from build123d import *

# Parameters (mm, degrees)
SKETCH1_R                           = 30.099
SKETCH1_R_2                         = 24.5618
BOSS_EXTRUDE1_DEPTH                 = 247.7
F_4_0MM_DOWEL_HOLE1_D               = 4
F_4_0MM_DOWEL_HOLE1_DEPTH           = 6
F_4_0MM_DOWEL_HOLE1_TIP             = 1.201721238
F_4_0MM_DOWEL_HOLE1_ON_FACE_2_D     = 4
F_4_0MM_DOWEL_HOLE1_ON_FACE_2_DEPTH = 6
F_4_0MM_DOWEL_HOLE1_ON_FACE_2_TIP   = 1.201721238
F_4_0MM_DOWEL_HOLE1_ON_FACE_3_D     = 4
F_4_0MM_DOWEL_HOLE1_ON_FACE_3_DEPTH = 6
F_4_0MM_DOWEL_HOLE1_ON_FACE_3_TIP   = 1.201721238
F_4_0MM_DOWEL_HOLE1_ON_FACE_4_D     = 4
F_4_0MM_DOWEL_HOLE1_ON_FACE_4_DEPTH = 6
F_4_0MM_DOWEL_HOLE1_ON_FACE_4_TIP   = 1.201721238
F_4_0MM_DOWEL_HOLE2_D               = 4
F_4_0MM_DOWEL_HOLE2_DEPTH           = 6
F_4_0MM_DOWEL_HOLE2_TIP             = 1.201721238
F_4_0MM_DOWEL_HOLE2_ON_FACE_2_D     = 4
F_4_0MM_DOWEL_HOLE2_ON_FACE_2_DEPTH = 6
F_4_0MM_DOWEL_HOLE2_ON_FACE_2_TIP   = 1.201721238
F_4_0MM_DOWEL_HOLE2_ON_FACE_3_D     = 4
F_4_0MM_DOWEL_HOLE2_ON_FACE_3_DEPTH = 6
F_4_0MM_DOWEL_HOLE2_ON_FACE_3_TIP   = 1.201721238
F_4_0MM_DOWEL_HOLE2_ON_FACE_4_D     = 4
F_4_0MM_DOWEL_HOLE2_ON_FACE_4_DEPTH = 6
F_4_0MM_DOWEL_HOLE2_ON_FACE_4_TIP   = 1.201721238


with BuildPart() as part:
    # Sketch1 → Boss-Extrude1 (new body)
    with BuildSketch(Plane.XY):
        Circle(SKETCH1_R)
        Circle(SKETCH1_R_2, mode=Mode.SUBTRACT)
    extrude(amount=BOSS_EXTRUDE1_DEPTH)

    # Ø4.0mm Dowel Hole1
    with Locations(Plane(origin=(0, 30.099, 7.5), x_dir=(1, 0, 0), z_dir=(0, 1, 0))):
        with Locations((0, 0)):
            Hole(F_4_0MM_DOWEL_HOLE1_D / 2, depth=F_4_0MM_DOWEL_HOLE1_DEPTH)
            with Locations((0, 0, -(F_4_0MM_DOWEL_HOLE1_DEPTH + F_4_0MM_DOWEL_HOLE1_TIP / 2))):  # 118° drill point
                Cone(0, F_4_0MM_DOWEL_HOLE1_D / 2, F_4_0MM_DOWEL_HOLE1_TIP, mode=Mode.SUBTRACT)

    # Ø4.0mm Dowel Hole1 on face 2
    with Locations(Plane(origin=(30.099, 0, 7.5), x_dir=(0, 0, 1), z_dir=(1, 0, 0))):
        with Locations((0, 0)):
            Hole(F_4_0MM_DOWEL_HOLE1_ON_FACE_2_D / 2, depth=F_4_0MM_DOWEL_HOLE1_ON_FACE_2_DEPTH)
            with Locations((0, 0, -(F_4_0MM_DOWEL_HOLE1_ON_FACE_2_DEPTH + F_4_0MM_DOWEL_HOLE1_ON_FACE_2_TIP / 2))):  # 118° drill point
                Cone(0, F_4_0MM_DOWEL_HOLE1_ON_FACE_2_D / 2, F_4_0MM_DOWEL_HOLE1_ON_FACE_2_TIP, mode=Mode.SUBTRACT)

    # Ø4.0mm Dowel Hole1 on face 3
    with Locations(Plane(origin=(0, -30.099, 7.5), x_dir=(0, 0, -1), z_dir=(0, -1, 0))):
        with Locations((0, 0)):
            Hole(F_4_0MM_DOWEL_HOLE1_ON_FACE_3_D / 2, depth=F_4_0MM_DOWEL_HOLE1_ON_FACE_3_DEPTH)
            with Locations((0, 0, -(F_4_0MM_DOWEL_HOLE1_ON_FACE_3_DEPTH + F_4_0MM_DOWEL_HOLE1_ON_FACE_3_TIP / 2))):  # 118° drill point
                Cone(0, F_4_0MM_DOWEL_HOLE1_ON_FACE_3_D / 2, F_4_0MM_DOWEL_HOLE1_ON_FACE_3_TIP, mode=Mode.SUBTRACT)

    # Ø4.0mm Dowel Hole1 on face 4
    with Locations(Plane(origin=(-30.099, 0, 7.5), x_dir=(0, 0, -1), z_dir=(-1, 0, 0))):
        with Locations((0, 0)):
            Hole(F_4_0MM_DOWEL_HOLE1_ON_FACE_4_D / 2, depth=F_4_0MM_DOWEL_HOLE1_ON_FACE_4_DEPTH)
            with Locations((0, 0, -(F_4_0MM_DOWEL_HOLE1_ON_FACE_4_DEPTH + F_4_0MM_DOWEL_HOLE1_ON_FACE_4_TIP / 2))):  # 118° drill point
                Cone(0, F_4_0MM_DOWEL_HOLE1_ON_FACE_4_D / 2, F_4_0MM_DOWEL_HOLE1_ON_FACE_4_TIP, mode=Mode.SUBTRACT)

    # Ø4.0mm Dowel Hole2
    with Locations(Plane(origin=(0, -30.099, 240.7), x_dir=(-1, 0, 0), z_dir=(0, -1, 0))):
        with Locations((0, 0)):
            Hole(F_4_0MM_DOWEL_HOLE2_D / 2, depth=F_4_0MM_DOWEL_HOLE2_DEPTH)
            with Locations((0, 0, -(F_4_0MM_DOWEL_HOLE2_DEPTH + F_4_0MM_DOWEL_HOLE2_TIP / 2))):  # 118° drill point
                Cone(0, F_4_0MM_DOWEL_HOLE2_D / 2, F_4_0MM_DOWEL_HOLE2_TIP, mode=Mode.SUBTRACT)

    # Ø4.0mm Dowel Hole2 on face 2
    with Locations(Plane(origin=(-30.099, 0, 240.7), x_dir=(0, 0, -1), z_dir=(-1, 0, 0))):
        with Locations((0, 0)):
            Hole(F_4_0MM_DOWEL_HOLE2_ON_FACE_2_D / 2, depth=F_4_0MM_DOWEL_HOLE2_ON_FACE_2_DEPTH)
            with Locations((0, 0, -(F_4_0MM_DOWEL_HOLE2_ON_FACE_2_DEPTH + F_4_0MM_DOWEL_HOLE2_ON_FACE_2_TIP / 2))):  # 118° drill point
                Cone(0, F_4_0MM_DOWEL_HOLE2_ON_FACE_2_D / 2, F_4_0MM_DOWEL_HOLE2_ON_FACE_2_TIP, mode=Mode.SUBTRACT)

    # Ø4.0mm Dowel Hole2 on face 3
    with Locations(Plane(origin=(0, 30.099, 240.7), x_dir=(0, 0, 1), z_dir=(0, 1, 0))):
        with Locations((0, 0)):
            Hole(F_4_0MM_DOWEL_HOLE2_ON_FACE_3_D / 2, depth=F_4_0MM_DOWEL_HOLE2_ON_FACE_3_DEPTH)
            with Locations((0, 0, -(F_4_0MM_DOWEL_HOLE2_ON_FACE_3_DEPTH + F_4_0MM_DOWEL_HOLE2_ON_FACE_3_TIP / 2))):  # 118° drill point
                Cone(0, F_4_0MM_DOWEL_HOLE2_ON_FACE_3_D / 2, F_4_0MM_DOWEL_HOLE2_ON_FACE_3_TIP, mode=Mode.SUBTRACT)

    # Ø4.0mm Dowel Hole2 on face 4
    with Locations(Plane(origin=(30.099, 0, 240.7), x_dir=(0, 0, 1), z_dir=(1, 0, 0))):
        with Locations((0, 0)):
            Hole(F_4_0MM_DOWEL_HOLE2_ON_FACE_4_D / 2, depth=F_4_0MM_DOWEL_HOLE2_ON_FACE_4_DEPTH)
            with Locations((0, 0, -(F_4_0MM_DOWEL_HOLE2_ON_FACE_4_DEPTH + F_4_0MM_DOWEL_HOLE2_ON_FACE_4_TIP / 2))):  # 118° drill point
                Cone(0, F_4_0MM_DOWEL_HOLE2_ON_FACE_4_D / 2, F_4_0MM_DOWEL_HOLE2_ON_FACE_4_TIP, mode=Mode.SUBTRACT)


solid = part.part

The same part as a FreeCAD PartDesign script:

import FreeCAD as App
import Part
import Sketcher
from FreeCAD import Vector
Q = App.Units.Quantity

doc = App.newDocument("Part")
params = doc.addObject("Spreadsheet::Sheet", "Params")
for row, (alias, value) in enumerate([
    ("pad1_length", "247.7 mm"),
    ("sketch2_diameter", "4 mm"),
    ("hole_diameter", "4 mm"),
    ("hole_depth", "6 mm"),
    ("sketch3_diameter", "4 mm"),
    ("hole2_diameter", "4 mm"),
    ("hole2_depth", "6 mm"),
    ("sketch4_diameter", "4 mm"),
    ("hole3_diameter", "4 mm"),
    ("hole3_depth", "6 mm"),
    ("sketch5_diameter", "4 mm"),
    ("hole4_diameter", "4 mm"),
    ("hole4_depth", "6 mm"),
    ("sketch6_diameter", "4 mm"),
    ("hole5_diameter", "4 mm"),
    ("hole5_depth", "6 mm"),
    ("sketch7_diameter", "4 mm"),
    ("hole6_diameter", "4 mm"),
    ("hole6_depth", "6 mm"),
    ("sketch8_diameter", "4 mm"),
    ("hole7_diameter", "4 mm"),
    ("hole7_depth", "6 mm"),
    ("sketch9_diameter", "4 mm"),
    ("hole8_diameter", "4 mm"),
    ("hole8_depth", "6 mm"),
], start=1):
    params.set(f"A{row}", alias)
    params.set(f"B{row}", "=" + value)
    params.setAlias(f"B{row}", alias)

body = doc.addObject("PartDesign::Body", "Body")

# Sketch on XY plane
sketch1 = body.newObject("Sketcher::SketchObject", "Sketch")
sketch1.AttachmentSupport = (doc.getObject("XY_Plane"), [""])
sketch1.MapMode = "FlatFace"
sketch1.addGeometry(Part.Circle(Vector(0, 0, 0), Vector(0, 0, 1), 30.099), False)
sketch1.addGeometry(Part.Circle(Vector(0, 0, 0), Vector(0, 0, 1), 24.5618), False)
sketch1.addConstraint(Sketcher.Constraint("Coincident", 0, 3, -1, 1))
sketch1.addConstraint(Sketcher.Constraint("Coincident", 1, 3, -1, 1))
sketch1.addConstraint(Sketcher.Constraint("Diameter", 0, Q("60.198 mm")))
sketch1.addConstraint(Sketcher.Constraint("Diameter", 1, Q("49.1236 mm")))
pad1 = body.newObject("PartDesign::Pad", "Pad")
pad1.Profile = sketch1
pad1.setExpression("Length", "Params.pad1_length")

# Sketch on XZ plane
sketch2 = body.newObject("Sketcher::SketchObject", "Sketch001")
sketch2.AttachmentSupport = (doc.getObject("XZ_Plane"), [""])
sketch2.MapMode = "FlatFace"
sketch2.AttachmentOffset = App.Placement(Vector(0, 0, -30.099), App.Rotation())
sketch2.addGeometry(Part.Circle(Vector(0, 7.5, 0), Vector(0, 0, 1), 2), False)
sketch2.addConstraint(Sketcher.Constraint("PointOnObject", 0, 3, -2))
sketch2.addConstraint(Sketcher.Constraint("Diameter", 0, Q("4 mm")))
sketch2.addConstraint(Sketcher.Constraint("DistanceY", -1, 1, 0, 3, Q("7.5 mm")))
sketch2.setExpression("Constraints[1]", "Params.sketch2_diameter")
doc.recompute()
hole = body.newObject("PartDesign::Hole", "Hole")
hole.Profile = sketch2
hole.ThreadType = "None"
hole.setExpression("Diameter", "Params.hole_diameter")
hole.DepthType = "Dimension"
hole.setExpression("Depth", "Params.hole_depth")
hole.DrillPoint = "Angled"
hole.DrillPointAngle = 118
hole.Reversed = True

# Sketch on YZ plane
sketch3 = body.newObject("Sketcher::SketchObject", "Sketch002")
sketch3.AttachmentSupport = (doc.getObject("YZ_Plane"), [""])
sketch3.MapMode = "FlatFace"
sketch3.AttachmentOffset = App.Placement(Vector(0, 0, 30.099), App.Rotation())
sketch3.addGeometry(Part.Circle(Vector(0, 7.5, 0), Vector(0, 0, 1), 2), False)
sketch3.addConstraint(Sketcher.Constraint("PointOnObject", 0, 3, -2))
sketch3.addConstraint(Sketcher.Constraint("Diameter", 0, Q("4 mm")))
sketch3.addConstraint(Sketcher.Constraint("DistanceY", -1, 1, 0, 3, Q("7.5 mm")))
sketch3.setExpression("Constraints[1]", "Params.sketch3_diameter")
doc.recompute()
hole2 = body.newObject("PartDesign::Hole", "Hole001")
hole2.Profile = sketch3
hole2.ThreadType = "None"
hole2.setExpression("Diameter", "Params.hole2_diameter")
hole2.DepthType = "Dimension"
hole2.setExpression("Depth", "Params.hole2_depth")
hole2.DrillPoint = "Angled"
hole2.DrillPointAngle = 118

# Sketch on XZ plane
sketch4 = body.newObject("Sketcher::SketchObject", "Sketch003")
sketch4.AttachmentSupport = (doc.getObject("XZ_Plane"), [""])
sketch4.MapMode = "FlatFace"
sketch4.AttachmentOffset = App.Placement(Vector(0, 0, 30.099), App.Rotation())
sketch4.addGeometry(Part.Circle(Vector(0, 7.5, 0), Vector(0, 0, 1), 2), False)
sketch4.addConstraint(Sketcher.Constraint("PointOnObject", 0, 3, -2))
sketch4.addConstraint(Sketcher.Constraint("Diameter", 0, Q("4 mm")))
sketch4.addConstraint(Sketcher.Constraint("DistanceY", -1, 1, 0, 3, Q("7.5 mm")))
sketch4.setExpression("Constraints[1]", "Params.sketch4_diameter")
doc.recompute()
hole3 = body.newObject("PartDesign::Hole", "Hole002")
hole3.Profile = sketch4
hole3.ThreadType = "None"
hole3.setExpression("Diameter", "Params.hole3_diameter")
hole3.DepthType = "Dimension"
hole3.setExpression("Depth", "Params.hole3_depth")
hole3.DrillPoint = "Angled"
hole3.DrillPointAngle = 118

# Sketch on YZ plane
sketch5 = body.newObject("Sketcher::SketchObject", "Sketch004")
sketch5.AttachmentSupport = (doc.getObject("YZ_Plane"), [""])
sketch5.MapMode = "FlatFace"
sketch5.AttachmentOffset = App.Placement(Vector(0, 0, -30.099), App.Rotation())
sketch5.addGeometry(Part.Circle(Vector(0, 7.5, 0), Vector(0, 0, 1), 2), False)
sketch5.addConstraint(Sketcher.Constraint("PointOnObject", 0, 3, -2))
sketch5.addConstraint(Sketcher.Constraint("Diameter", 0, Q("4 mm")))
sketch5.addConstraint(Sketcher.Constraint("DistanceY", -1, 1, 0, 3, Q("7.5 mm")))
sketch5.setExpression("Constraints[1]", "Params.sketch5_diameter")
doc.recompute()
hole4 = body.newObject("PartDesign::Hole", "Hole003")
hole4.Profile = sketch5
hole4.ThreadType = "None"
hole4.setExpression("Diameter", "Params.hole4_diameter")
hole4.DepthType = "Dimension"
hole4.setExpression("Depth", "Params.hole4_depth")
hole4.DrillPoint = "Angled"
hole4.DrillPointAngle = 118
hole4.Reversed = True

# Sketch on XZ plane
sketch6 = body.newObject("Sketcher::SketchObject", "Sketch005")
sketch6.AttachmentSupport = (doc.getObject("XZ_Plane"), [""])
sketch6.MapMode = "FlatFace"
sketch6.AttachmentOffset = App.Placement(Vector(0, 0, 30.099), App.Rotation())
sketch6.addGeometry(Part.Circle(Vector(0, 240.7, 0), Vector(0, 0, 1), 2), False)
sketch6.addConstraint(Sketcher.Constraint("PointOnObject", 0, 3, -2))
sketch6.addConstraint(Sketcher.Constraint("Diameter", 0, Q("4 mm")))
sketch6.addConstraint(Sketcher.Constraint("DistanceY", -1, 1, 0, 3, Q("240.7 mm")))
sketch6.setExpression("Constraints[1]", "Params.sketch6_diameter")
doc.recompute()
hole5 = body.newObject("PartDesign::Hole", "Hole004")
hole5.Profile = sketch6
hole5.ThreadType = "None"
hole5.setExpression("Diameter", "Params.hole5_diameter")
hole5.DepthType = "Dimension"
hole5.setExpression("Depth", "Params.hole5_depth")
hole5.DrillPoint = "Angled"
hole5.DrillPointAngle = 118

# Sketch on YZ plane
sketch7 = body.newObject("Sketcher::SketchObject", "Sketch006")
sketch7.AttachmentSupport = (doc.getObject("YZ_Plane"), [""])
sketch7.MapMode = "FlatFace"
sketch7.AttachmentOffset = App.Placement(Vector(0, 0, -30.099), App.Rotation())
sketch7.addGeometry(Part.Circle(Vector(0, 240.7, 0), Vector(0, 0, 1), 2), False)
sketch7.addConstraint(Sketcher.Constraint("PointOnObject", 0, 3, -2))
sketch7.addConstraint(Sketcher.Constraint("Diameter", 0, Q("4 mm")))
sketch7.addConstraint(Sketcher.Constraint("DistanceY", -1, 1, 0, 3, Q("240.7 mm")))
sketch7.setExpression("Constraints[1]", "Params.sketch7_diameter")
doc.recompute()
hole6 = body.newObject("PartDesign::Hole", "Hole005")
hole6.Profile = sketch7
hole6.ThreadType = "None"
hole6.setExpression("Diameter", "Params.hole6_diameter")
hole6.DepthType = "Dimension"
hole6.setExpression("Depth", "Params.hole6_depth")
hole6.DrillPoint = "Angled"
hole6.DrillPointAngle = 118
hole6.Reversed = True

# Sketch on XZ plane
sketch8 = body.newObject("Sketcher::SketchObject", "Sketch007")
sketch8.AttachmentSupport = (doc.getObject("XZ_Plane"), [""])
sketch8.MapMode = "FlatFace"
sketch8.AttachmentOffset = App.Placement(Vector(0, 0, -30.099), App.Rotation())
sketch8.addGeometry(Part.Circle(Vector(0, 240.7, 0), Vector(0, 0, 1), 2), False)
sketch8.addConstraint(Sketcher.Constraint("PointOnObject", 0, 3, -2))
sketch8.addConstraint(Sketcher.Constraint("Diameter", 0, Q("4 mm")))
sketch8.addConstraint(Sketcher.Constraint("DistanceY", -1, 1, 0, 3, Q("240.7 mm")))
sketch8.setExpression("Constraints[1]", "Params.sketch8_diameter")
doc.recompute()
hole7 = body.newObject("PartDesign::Hole", "Hole006")
hole7.Profile = sketch8
hole7.ThreadType = "None"
hole7.setExpression("Diameter", "Params.hole7_diameter")
hole7.DepthType = "Dimension"
hole7.setExpression("Depth", "Params.hole7_depth")
hole7.DrillPoint = "Angled"
hole7.DrillPointAngle = 118
hole7.Reversed = True

# Sketch on YZ plane
sketch9 = body.newObject("Sketcher::SketchObject", "Sketch008")
sketch9.AttachmentSupport = (doc.getObject("YZ_Plane"), [""])
sketch9.MapMode = "FlatFace"
sketch9.AttachmentOffset = App.Placement(Vector(0, 0, 30.099), App.Rotation())
sketch9.addGeometry(Part.Circle(Vector(0, 240.7, 0), Vector(0, 0, 1), 2), False)
sketch9.addConstraint(Sketcher.Constraint("PointOnObject", 0, 3, -2))
sketch9.addConstraint(Sketcher.Constraint("Diameter", 0, Q("4 mm")))
sketch9.addConstraint(Sketcher.Constraint("DistanceY", -1, 1, 0, 3, Q("240.7 mm")))
sketch9.setExpression("Constraints[1]", "Params.sketch9_diameter")
doc.recompute()
hole8 = body.newObject("PartDesign::Hole", "Hole007")
hole8.Profile = sketch9
hole8.ThreadType = "None"
hole8.setExpression("Diameter", "Params.hole8_diameter")
hole8.DepthType = "Dimension"
hole8.setExpression("Depth", "Params.hole8_depth")
hole8.DrillPoint = "Angled"
hole8.DrillPointAngle = 118

doc.recompute()
